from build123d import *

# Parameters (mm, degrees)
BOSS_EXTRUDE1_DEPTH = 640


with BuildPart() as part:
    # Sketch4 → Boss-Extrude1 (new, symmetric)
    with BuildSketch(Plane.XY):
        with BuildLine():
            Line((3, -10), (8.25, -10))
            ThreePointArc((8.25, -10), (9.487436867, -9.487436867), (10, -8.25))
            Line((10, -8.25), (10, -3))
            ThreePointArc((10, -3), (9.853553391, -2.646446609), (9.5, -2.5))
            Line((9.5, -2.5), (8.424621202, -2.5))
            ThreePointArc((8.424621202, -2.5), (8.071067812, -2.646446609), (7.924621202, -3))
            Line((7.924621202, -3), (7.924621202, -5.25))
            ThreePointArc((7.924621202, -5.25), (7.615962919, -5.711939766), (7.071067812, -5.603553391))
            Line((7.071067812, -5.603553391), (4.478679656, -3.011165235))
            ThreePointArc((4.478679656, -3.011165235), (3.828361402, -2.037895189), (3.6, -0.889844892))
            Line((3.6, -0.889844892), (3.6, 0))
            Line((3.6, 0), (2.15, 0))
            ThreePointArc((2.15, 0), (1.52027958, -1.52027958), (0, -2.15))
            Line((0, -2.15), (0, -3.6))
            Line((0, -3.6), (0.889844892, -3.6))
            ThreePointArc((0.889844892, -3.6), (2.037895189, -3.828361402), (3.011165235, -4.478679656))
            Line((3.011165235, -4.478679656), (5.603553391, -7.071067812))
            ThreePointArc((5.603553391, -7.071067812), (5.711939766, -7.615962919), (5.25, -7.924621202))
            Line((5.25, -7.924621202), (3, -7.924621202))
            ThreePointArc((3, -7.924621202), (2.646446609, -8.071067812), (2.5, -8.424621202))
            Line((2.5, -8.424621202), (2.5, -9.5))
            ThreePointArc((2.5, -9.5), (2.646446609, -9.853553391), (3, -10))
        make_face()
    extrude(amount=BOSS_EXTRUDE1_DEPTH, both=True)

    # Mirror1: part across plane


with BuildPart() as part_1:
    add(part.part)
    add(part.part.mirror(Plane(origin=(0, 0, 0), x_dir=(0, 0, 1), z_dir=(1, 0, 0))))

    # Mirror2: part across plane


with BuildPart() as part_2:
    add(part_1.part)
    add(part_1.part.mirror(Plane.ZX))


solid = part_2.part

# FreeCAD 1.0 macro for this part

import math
import FreeCAD as App
import Part
import Sketcher

doc = App.newDocument("Part")
body = doc.addObject("PartDesign::Body", "Body")

sketch1 = doc.addObject("Sketcher::SketchObject", "Sketch")
body.addObject(sketch1)
sketch1.AttachmentSupport = (doc.XY_Plane, [""])
sketch1.MapMode = "FlatFace"
sketch1.addGeometry(Part.LineSegment(App.Vector(3, -10, 0), App.Vector(8.25, -10, 0)), False)
sketch1.addGeometry(Part.ArcOfCircle(Part.Circle(App.Vector(8.25, -8.25, 0), App.Vector(0, 0, 1), 1.75), math.radians(-90), math.radians(0)), False)
sketch1.addGeometry(Part.LineSegment(App.Vector(10, -8.25, 0), App.Vector(10, -3, 0)), False)
sketch1.addGeometry(Part.ArcOfCircle(Part.Circle(App.Vector(9.5, -3, 0), App.Vector(0, 0, 1), 0.5), math.radians(0), math.radians(90)), False)
sketch1.addGeometry(Part.LineSegment(App.Vector(9.5, -2.5, 0), App.Vector(8.42, -2.5, 0)), False)
sketch1.addGeometry(Part.ArcOfCircle(Part.Circle(App.Vector(8.42, -3, 0), App.Vector(0, 0, 1), 0.5), math.radians(90), math.radians(180)), False)
sketch1.addGeometry(Part.LineSegment(App.Vector(7.92, -3, 0), App.Vector(7.92, -5.25, 0)), False)
sketch1.addGeometry(Part.ArcOfCircle(Part.Circle(App.Vector(7.42, -5.25, 0), App.Vector(0, 0, 1), 0.5), math.radians(-135), math.radians(0)), False)
sketch1.addGeometry(Part.LineSegment(App.Vector(7.07, -5.6, 0), App.Vector(4.48, -3.01, 0)), False)
sketch1.addGeometry(Part.ArcOfCircle(Part.Circle(App.Vector(6.6, -0.89, 0), App.Vector(0, 0, 1), 3), math.radians(180), math.radians(225)), False)
sketch1.addGeometry(Part.LineSegment(App.Vector(3.6, -0.89, 0), App.Vector(3.6, 0, 0)), False)
sketch1.addGeometry(Part.LineSegment(App.Vector(3.6, 0, 0), App.Vector(2.15, 0, 0)), False)
sketch1.addGeometry(Part.ArcOfCircle(Part.Circle(App.Vector(0, 0, 0), App.Vector(0, 0, 1), 2.15), math.radians(-90), math.radians(0)), False)
sketch1.addGeometry(Part.LineSegment(App.Vector(0, -2.15, 0), App.Vector(0, -3.6, 0)), False)
sketch1.addGeometry(Part.LineSegment(App.Vector(0, -3.6, 0), App.Vector(0.89, -3.6, 0)), False)
sketch1.addGeometry(Part.ArcOfCircle(Part.Circle(App.Vector(0.89, -6.6, 0), App.Vector(0, 0, 1), 3), math.radians(45), math.radians(90)), False)
sketch1.addGeometry(Part.LineSegment(App.Vector(3.01, -4.48, 0), App.Vector(5.6, -7.07, 0)), False)
sketch1.addGeometry(Part.ArcOfCircle(Part.Circle(App.Vector(5.25, -7.42, 0), App.Vector(0, 0, 1), 0.5), math.radians(-90), math.radians(45)), False)
sketch1.addGeometry(Part.LineSegment(App.Vector(5.25, -7.92, 0), App.Vector(3, -7.92, 0)), False)
sketch1.addGeometry(Part.ArcOfCircle(Part.Circle(App.Vector(3, -8.42, 0), App.Vector(0, 0, 1), 0.5), math.radians(90), math.radians(180)), False)
sketch1.addGeometry(Part.LineSegment(App.Vector(2.5, -8.42, 0), App.Vector(2.5, -9.5, 0)), False)
sketch1.addGeometry(Part.ArcOfCircle(Part.Circle(App.Vector(3, -9.5, 0), App.Vector(0, 0, 1), 0.5), math.radians(180), math.radians(270)), False)
sketch1.addConstraint(Sketcher.Constraint("Tangent", 0, 2, 1, 1))
sketch1.addConstraint(Sketcher.Constraint("Tangent", 1, 2, 2, 1))
sketch1.addConstraint(Sketcher.Constraint("Tangent", 2, 2, 3, 1))
sketch1.addConstraint(Sketcher.Constraint("Tangent", 3, 2, 4, 1))
sketch1.addConstraint(Sketcher.Constraint("Tangent", 4, 2, 5, 1))
sketch1.addConstraint(Sketcher.Constraint("Tangent", 5, 2, 6, 1))
sketch1.addConstraint(Sketcher.Constraint("Tangent", 6, 2, 7, 2))
sketch1.addConstraint(Sketcher.Constraint("Tangent", 7, 1, 8, 1))
sketch1.addConstraint(Sketcher.Constraint("Tangent", 8, 2, 9, 2))
sketch1.addConstraint(Sketcher.Constraint("Tangent", 9, 1, 10, 1))
sketch1.addConstraint(Sketcher.Constraint("Coincident", 10, 2, 11, 1))
sketch1.addConstraint(Sketcher.Constraint("Coincident", 11, 2, 12, 2))
sketch1.addConstraint(Sketcher.Constraint("Coincident", 12, 1, 13, 1))
sketch1.addConstraint(Sketcher.Constraint("Coincident", 13, 2, 14, 1))
sketch1.addConstraint(Sketcher.Constraint("Tangent", 14, 2, 15, 2))
sketch1.addConstraint(Sketcher.Constraint("Tangent", 15, 1, 16, 1))
sketch1.addConstraint(Sketcher.Constraint("Tangent", 16, 2, 17, 2))
sketch1.addConstraint(Sketcher.Constraint("Tangent", 17, 1, 18, 1))
sketch1.addConstraint(Sketcher.Constraint("Tangent", 18, 2, 19, 1))
sketch1.addConstraint(Sketcher.Constraint("Tangent", 19, 2, 20, 1))
sketch1.addConstraint(Sketcher.Constraint("Tangent", 20, 2, 21, 1))
sketch1.addConstraint(Sketcher.Constraint("Tangent", 21, 2, 0, 1))
sketch1.addConstraint(Sketcher.Constraint("Horizontal", 0))
sketch1.addConstraint(Sketcher.Constraint("Vertical", 2))
sketch1.addConstraint(Sketcher.Constraint("Horizontal", 4))
sketch1.addConstraint(Sketcher.Constraint("Vertical", 6))
sketch1.addConstraint(Sketcher.Constraint("Vertical", 10))
sketch1.addConstraint(Sketcher.Constraint("Horizontal", 11))
sketch1.addConstraint(Sketcher.Constraint("Vertical", 13))
sketch1.addConstraint(Sketcher.Constraint("Horizontal", 14))
sketch1.addConstraint(Sketcher.Constraint("Horizontal", 18))
sketch1.addConstraint(Sketcher.Constraint("Vertical", 20))
sketch1.addConstraint(Sketcher.Constraint("Coincident", 12, 3, -1, 1))
sketch1.addConstraint(Sketcher.Constraint("Equal", 3, 5))
sketch1.addConstraint(Sketcher.Constraint("Equal", 5, 7))
sketch1.addConstraint(Sketcher.Constraint("Equal", 9, 15))
sketch1.addConstraint(Sketcher.Constraint("Equal", 7, 17))
sketch1.addConstraint(Sketcher.Constraint("Equal", 17, 19))
sketch1.addConstraint(Sketcher.Constraint("Equal", 19, 21))
sketch1.addConstraint(Sketcher.Constraint("PointOnObject", 10, 2, -1))
sketch1.addConstraint(Sketcher.Constraint("PointOnObject", 12, 1, -2))
sketch1.addConstraint(Sketcher.Constraint("Parallel", 8, 16))
sketch1.addConstraint(Sketcher.Constraint("Equal", 0, 2))
sketch1.addConstraint(Sketcher.Constraint("Equal", 18, 6))
sketch1.addConstraint(Sketcher.Constraint("Equal", 14, 10))
sketch1.addConstraint(Sketcher.Constraint("Equal", 11, 13))
sketch1.addConstraint(Sketcher.Constraint("Equal", 4, 20))
sketch1.addConstraint(Sketcher.Constraint("Equal", 8, 16))
sketch1.addConstraint(Sketcher.Constraint("Radius", 9, 3.0))
sketch1.addConstraint(Sketcher.Constraint("Radius", 3, 0.5))
sketch1.addConstraint(Sketcher.Constraint("Radius", 1, 1.75))
sketch1.addConstraint(Sketcher.Constraint("Radius", 12, 2.15))
sketch1.addConstraint(Sketcher.Constraint("DistanceY", 3, 3, -1, 1, 3.0))
sketch1.addConstraint(Sketcher.Constraint("DistanceY", 0, 2, -1, 1, 10.0))
sketch1.addConstraint(Sketcher.Constraint("DistanceY", 1, 3, 7, 3, 3.0))
sketch1.addConstraint(Sketcher.Constraint("DistanceX", 11, 2, 11, 1, 1.45))
sketch1.addConstraint(Sketcher.Constraint("DistanceX", 4, 2, 4, 1, 1.075379))
pad1 = doc.addObject("PartDesign::Pad", "Pad")
body.addObject(pad1)
pad1.Profile = sketch1
pad1.Length = 1280
pad1.Midplane = True
body2 = doc.addObject("PartDesign::Body", "Body001")
doc.recompute()

body2.BaseFeature = body
doc.recompute()

mirroring = doc.addObject("Part::Mirroring", "Mirroring")
mirroring.Source = body
mirroring.Base = App.Vector(0, 0, 0)
mirroring.Normal = App.Vector(1, 0, 0)
body3 = doc.addObject("PartDesign::Body", "Body002")
body3.BaseFeature = mirroring
boolean = doc.addObject("PartDesign::Boolean", "Boolean")
body2.addObject(boolean)
boolean.Type = "Fuse"
boolean.addObjects([body3])
doc.recompute()
body4 = doc.addObject("PartDesign::Body", "Body003")
doc.recompute()

body4.BaseFeature = body2
doc.recompute()

mirroring2 = doc.addObject("Part::Mirroring", "Mirroring001")
mirroring2.Source = body2
mirroring2.Base = App.Vector(0, 0, 0)
mirroring2.Normal = App.Vector(0, 1, 0)
body5 = doc.addObject("PartDesign::Body", "Body004")
body5.BaseFeature = mirroring2
boolean2 = doc.addObject("PartDesign::Boolean", "Boolean001")
body4.addObject(boolean2)
boolean2.Type = "Fuse"
boolean2.addObjects([body5])
doc.recompute()
mirroring.Visibility = False
mirroring2.Visibility = False

doc.recompute()
